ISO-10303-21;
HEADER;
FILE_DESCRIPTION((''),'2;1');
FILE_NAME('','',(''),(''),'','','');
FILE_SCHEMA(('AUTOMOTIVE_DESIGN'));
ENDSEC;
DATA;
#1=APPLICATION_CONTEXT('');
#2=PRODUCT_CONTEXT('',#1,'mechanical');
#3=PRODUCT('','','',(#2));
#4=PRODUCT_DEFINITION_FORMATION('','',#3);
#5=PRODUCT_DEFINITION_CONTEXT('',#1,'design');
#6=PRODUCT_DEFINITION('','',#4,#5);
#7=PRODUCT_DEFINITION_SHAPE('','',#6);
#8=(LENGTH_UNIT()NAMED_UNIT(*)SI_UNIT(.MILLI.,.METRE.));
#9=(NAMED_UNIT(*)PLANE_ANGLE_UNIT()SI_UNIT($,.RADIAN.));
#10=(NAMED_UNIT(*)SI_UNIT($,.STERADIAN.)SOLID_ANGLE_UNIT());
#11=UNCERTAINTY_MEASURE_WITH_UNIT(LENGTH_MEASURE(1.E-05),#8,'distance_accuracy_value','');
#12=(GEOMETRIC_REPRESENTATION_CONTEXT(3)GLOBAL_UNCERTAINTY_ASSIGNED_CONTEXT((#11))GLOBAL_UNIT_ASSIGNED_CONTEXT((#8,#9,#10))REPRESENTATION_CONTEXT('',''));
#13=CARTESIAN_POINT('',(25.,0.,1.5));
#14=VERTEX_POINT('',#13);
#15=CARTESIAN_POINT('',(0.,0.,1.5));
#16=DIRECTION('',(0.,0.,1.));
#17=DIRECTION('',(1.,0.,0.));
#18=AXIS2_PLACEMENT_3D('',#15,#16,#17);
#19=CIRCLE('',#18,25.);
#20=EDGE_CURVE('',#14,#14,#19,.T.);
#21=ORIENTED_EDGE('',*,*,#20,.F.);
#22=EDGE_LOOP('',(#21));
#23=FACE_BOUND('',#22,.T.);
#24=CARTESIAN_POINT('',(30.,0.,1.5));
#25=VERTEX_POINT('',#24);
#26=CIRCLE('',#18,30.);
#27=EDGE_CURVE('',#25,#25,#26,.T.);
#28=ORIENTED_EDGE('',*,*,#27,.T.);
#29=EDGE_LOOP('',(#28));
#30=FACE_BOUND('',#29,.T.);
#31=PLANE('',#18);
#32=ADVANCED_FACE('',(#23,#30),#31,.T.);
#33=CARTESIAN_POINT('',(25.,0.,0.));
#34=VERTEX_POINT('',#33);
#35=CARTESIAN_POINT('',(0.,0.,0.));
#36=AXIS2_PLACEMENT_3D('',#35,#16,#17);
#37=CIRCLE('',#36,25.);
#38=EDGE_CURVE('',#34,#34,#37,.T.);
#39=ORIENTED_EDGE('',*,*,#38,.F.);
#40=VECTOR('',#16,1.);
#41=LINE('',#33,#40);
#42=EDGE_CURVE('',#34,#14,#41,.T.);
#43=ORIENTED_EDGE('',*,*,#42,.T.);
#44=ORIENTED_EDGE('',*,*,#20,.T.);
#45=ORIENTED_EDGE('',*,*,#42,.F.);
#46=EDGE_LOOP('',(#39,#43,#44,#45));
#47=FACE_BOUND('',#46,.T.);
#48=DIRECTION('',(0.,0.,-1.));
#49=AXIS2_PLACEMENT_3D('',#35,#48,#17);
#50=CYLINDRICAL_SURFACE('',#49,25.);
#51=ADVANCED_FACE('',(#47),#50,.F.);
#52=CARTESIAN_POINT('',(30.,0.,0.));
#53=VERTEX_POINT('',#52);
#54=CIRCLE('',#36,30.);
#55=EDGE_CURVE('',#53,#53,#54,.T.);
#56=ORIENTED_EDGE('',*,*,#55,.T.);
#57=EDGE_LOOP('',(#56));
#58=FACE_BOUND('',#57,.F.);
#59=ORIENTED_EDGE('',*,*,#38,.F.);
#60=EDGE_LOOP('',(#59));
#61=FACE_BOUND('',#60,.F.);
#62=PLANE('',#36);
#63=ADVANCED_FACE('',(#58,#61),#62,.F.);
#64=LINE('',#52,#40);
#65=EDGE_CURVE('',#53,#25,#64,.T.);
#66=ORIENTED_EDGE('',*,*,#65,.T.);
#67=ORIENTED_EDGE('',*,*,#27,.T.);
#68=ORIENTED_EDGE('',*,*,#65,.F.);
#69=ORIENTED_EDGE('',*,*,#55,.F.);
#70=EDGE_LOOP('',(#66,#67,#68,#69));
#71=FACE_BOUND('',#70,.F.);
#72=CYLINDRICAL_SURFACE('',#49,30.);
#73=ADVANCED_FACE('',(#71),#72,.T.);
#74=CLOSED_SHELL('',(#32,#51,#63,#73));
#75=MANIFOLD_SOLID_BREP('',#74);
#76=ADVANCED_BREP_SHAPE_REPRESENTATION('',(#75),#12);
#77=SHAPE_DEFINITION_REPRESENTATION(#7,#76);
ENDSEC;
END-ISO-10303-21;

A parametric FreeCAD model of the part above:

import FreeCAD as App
import Part
import Sketcher

doc = App.newDocument("Part")
params = doc.addObject("Spreadsheet::Sheet", "Params")
for row, (alias, value) in enumerate([
    ("sketch1_diameter", "60 mm"),
    ("sketch1_diameter2", "50 mm"),
    ("pad1_length", "1.5 mm"),
], start=1):
    params.set(f"A{row}", alias)
    params.set(f"B{row}", "=" + value)
    params.setAlias(f"B{row}", alias)

body = doc.addObject("PartDesign::Body", "Body")

# Sketch on XY plane
sketch1 = body.newObject("Sketcher::SketchObject", "Sketch")
sketch1.AttachmentSupport = (doc.getObject("XY_Plane"), [""])
sketch1.MapMode = "FlatFace"
sketch1.addGeometry([
    Part.Circle(App.Vector(0, 0, 0), App.Vector(0, 0, 1), 30),
    Part.Circle(App.Vector(0, 0, 0), App.Vector(0, 0, 1), 25),
], False)
sketch1.addConstraint([
    Sketcher.Constraint("Coincident", 0, 3, -1, 1),
    Sketcher.Constraint("Coincident", 1, 3, -1, 1),
    Sketcher.Constraint("Diameter", 0, 60.0),
    Sketcher.Constraint("Diameter", 1, 50.0),
])
sketch1.setExpression("Constraints[2]", "Params.sketch1_diameter")
sketch1.setExpression("Constraints[3]", "Params.sketch1_diameter2")
pad1 = body.newObject("PartDesign::Pad", "Pad")
pad1.Profile = sketch1
pad1.setExpression("Length", "Params.pad1_length")

doc.recompute()
